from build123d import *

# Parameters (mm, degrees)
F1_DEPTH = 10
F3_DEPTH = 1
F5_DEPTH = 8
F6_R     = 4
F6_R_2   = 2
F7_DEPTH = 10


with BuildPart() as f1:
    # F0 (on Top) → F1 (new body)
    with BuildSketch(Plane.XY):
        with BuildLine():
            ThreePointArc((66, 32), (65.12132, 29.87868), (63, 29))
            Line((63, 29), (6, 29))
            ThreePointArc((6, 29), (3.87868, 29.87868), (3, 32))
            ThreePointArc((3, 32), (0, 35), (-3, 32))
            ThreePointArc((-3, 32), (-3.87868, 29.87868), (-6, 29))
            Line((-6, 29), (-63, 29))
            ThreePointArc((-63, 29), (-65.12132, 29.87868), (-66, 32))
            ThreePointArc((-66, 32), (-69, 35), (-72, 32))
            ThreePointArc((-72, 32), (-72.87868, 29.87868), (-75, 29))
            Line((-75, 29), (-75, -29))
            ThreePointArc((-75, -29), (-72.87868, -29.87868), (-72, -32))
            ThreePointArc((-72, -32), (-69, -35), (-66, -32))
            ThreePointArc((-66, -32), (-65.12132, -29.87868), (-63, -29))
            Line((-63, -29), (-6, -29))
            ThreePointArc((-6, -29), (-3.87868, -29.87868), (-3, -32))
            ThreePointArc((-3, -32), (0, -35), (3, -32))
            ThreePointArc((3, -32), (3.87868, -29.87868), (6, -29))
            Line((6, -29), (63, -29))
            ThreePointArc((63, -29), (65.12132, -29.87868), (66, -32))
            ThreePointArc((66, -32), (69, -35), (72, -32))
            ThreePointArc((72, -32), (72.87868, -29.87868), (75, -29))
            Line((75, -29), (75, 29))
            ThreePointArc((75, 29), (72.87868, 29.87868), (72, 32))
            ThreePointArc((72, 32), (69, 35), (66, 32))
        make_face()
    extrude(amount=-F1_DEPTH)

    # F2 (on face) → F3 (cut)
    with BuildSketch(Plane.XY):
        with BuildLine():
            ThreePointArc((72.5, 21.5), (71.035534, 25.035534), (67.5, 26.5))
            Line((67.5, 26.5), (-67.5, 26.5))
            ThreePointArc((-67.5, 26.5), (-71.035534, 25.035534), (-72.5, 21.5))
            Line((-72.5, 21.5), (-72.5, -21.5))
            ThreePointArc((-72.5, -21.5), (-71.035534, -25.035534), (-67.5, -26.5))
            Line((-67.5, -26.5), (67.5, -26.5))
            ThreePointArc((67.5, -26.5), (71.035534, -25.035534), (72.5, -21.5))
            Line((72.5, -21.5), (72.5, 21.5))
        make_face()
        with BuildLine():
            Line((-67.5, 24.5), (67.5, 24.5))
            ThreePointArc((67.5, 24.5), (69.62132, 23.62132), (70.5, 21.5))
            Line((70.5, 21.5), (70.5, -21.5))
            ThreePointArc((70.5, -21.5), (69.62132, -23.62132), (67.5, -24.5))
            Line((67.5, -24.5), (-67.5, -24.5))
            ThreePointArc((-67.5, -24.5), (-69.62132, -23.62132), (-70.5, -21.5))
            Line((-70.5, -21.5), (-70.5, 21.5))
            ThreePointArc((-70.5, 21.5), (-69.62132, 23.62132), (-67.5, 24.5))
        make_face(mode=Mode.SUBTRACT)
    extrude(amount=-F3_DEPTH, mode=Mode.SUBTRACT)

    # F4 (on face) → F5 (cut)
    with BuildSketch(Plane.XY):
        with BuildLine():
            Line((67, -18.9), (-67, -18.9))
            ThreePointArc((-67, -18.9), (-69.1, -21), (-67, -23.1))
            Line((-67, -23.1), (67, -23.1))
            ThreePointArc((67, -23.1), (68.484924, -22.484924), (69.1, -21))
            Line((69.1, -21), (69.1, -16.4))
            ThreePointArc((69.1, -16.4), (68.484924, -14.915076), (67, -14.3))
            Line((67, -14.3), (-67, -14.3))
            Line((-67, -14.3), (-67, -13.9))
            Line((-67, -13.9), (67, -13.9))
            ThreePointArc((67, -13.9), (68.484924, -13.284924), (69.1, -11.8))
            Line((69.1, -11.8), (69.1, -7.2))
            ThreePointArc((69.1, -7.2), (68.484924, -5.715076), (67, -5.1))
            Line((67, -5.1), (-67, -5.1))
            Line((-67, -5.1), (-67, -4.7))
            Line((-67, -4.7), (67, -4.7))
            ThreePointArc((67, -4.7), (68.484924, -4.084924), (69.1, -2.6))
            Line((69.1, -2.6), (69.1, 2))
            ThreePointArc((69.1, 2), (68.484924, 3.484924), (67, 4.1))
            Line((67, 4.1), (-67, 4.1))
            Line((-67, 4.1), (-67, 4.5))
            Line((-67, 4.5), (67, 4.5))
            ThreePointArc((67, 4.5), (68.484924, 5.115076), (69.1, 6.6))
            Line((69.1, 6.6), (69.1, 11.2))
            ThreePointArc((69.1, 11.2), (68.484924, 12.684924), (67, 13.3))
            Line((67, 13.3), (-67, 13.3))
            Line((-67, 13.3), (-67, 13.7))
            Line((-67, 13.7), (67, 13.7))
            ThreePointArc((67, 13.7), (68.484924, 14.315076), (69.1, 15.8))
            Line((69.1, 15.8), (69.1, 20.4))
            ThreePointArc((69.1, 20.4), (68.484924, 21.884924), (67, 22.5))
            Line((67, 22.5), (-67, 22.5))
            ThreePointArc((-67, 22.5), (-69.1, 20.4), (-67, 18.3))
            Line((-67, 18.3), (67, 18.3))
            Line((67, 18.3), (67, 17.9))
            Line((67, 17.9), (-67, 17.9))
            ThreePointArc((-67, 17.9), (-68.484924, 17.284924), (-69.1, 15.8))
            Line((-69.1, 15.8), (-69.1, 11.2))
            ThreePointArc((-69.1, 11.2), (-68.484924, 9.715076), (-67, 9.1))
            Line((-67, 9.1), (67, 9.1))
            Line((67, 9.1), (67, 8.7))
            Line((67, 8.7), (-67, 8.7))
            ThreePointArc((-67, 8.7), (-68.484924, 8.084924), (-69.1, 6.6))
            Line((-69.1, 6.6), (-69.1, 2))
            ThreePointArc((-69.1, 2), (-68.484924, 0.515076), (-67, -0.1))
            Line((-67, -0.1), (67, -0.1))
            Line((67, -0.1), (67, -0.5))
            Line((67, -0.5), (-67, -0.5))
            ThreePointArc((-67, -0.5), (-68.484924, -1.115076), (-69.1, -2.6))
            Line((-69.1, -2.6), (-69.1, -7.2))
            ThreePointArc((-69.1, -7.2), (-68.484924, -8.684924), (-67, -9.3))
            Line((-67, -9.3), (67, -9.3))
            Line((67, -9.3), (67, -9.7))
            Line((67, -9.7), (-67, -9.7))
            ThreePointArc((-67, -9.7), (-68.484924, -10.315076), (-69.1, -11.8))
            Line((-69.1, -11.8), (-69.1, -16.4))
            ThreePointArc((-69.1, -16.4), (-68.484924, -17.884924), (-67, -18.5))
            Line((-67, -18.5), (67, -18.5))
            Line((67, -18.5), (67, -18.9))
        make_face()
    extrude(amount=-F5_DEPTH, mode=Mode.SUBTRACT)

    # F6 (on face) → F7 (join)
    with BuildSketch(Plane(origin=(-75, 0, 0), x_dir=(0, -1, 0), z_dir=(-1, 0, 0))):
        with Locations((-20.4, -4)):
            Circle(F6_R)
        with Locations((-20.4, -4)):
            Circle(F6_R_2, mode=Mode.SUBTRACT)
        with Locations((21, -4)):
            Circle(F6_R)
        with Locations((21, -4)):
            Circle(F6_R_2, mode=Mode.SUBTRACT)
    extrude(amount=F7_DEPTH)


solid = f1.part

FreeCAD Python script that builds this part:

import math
import FreeCAD as App
import Part
import Sketcher
from FreeCAD import Vector

doc = App.newDocument("Part")
body = doc.addObject("PartDesign::Body", "Body")

# Sketch on XY plane
sketch1 = body.newObject("Sketcher::SketchObject", "Sketch")
sketch1.AttachmentSupport = (doc.getObject("XY_Plane"), [""])
sketch1.MapMode = "FlatFace"
sketch1.addGeometry([
    Part.ArcOfCircle(Part.Circle(Vector(63, 32, 0), Vector(0, 0, 1), 3), math.radians(-90), math.radians(0)),  # 0
    Part.LineSegment(Vector(63, 29, 0), Vector(6, 29, 0)),  # 1
    Part.ArcOfCircle(Part.Circle(Vector(6, 32, 0), Vector(0, 0, 1), 3), math.radians(-180), math.radians(-90)),  # 2
    Part.ArcOfCircle(Part.Circle(Vector(0, 32, 0), Vector(0, 0, 1), 3), math.radians(0), math.radians(180)),  # 3
    Part.ArcOfCircle(Part.Circle(Vector(-6, 32, 0), Vector(0, 0, 1), 3), math.radians(-90), math.radians(0)),  # 4
    Part.LineSegment(Vector(-6, 29, 0), Vector(-63, 29, 0)),  # 5
    Part.ArcOfCircle(Part.Circle(Vector(-63, 32, 0), Vector(0, 0, 1), 3), math.radians(-180), math.radians(-90)),  # 6
    Part.ArcOfCircle(Part.Circle(Vector(-69, 32, 0), Vector(0, 0, 1), 3), math.radians(0), math.radians(180)),  # 7
    Part.ArcOfCircle(Part.Circle(Vector(-75, 32, 0), Vector(0, 0, 1), 3), math.radians(-90), math.radians(0)),  # 8
    Part.LineSegment(Vector(-75, 29, 0), Vector(-75, -29, 0)),  # 9
    Part.ArcOfCircle(Part.Circle(Vector(-75, -32, 0), Vector(0, 0, 1), 3), math.radians(0), math.radians(90)),  # 10
    Part.ArcOfCircle(Part.Circle(Vector(-69, -32, 0), Vector(0, 0, 1), 3), math.radians(180), math.radians(360)),  # 11
    Part.ArcOfCircle(Part.Circle(Vector(-63, -32, 0), Vector(0, 0, 1), 3), math.radians(90), math.radians(180)),  # 12
    Part.LineSegment(Vector(-63, -29, 0), Vector(-6, -29, 0)),  # 13
    Part.ArcOfCircle(Part.Circle(Vector(-6, -32, 0), Vector(0, 0, 1), 3), math.radians(0), math.radians(90)),  # 14
    Part.ArcOfCircle(Part.Circle(Vector(0, -32, 0), Vector(0, 0, 1), 3), math.radians(180), math.radians(360)),  # 15
    Part.ArcOfCircle(Part.Circle(Vector(6, -32, 0), Vector(0, 0, 1), 3), math.radians(90), math.radians(180)),  # 16
    Part.LineSegment(Vector(6, -29, 0), Vector(63, -29, 0)),  # 17
    Part.ArcOfCircle(Part.Circle(Vector(63, -32, 0), Vector(0, 0, 1), 3), math.radians(0), math.radians(90)),  # 18
    Part.ArcOfCircle(Part.Circle(Vector(69, -32, 0), Vector(0, 0, 1), 3), math.radians(180), math.radians(360)),  # 19
    Part.ArcOfCircle(Part.Circle(Vector(75, -32, 0), Vector(0, 0, 1), 3), math.radians(90), math.radians(180)),  # 20
    Part.LineSegment(Vector(75, -29, 0), Vector(75, 29, 0)),  # 21
    Part.ArcOfCircle(Part.Circle(Vector(75, 32, 0), Vector(0, 0, 1), 3), math.radians(-180), math.radians(-90)),  # 22
    Part.ArcOfCircle(Part.Circle(Vector(69, 32, 0), Vector(0, 0, 1), 3), math.radians(0), math.radians(180)),  # 23
], False)
sketch1.addConstraint([
    Sketcher.Constraint("Tangent", 0, 1, 1, 1),
    Sketcher.Constraint("Tangent", 1, 2, 2, 2),
    Sketcher.Constraint("Tangent", 2, 1, 3, 1),
    Sketcher.Constraint("Tangent", 3, 2, 4, 2),
    Sketcher.Constraint("Tangent", 4, 1, 5, 1),
    Sketcher.Constraint("Tangent", 5, 2, 6, 2),
    Sketcher.Constraint("Tangent", 6, 1, 7, 1),
    Sketcher.Constraint("Tangent", 7, 2, 8, 2),
    Sketcher.Constraint("Coincident", 8, 1, 9, 1),
    Sketcher.Constraint("Coincident", 9, 2, 10, 2),
    Sketcher.Constraint("Tangent", 10, 1, 11, 1),
    Sketcher.Constraint("Tangent", 11, 2, 12, 2),
    Sketcher.Constraint("Tangent", 12, 1, 13, 1),
    Sketcher.Constraint("Tangent", 13, 2, 14, 2),
    Sketcher.Constraint("Tangent", 14, 1, 15, 1),
    Sketcher.Constraint("Tangent", 15, 2, 16, 2),
    Sketcher.Constraint("Tangent", 16, 1, 17, 1),
    Sketcher.Constraint("Tangent", 17, 2, 18, 2),
    Sketcher.Constraint("Tangent", 18, 1, 19, 1),
    Sketcher.Constraint("Tangent", 19, 2, 20, 2),
    Sketcher.Constraint("Coincident", 20, 1, 21, 1),
    Sketcher.Constraint("Coincident", 21, 2, 22, 2),
    Sketcher.Constraint("Tangent", 22, 1, 23, 1),
    Sketcher.Constraint("Tangent", 23, 2, 0, 2),
    Sketcher.Constraint("Horizontal", 1),
    Sketcher.Constraint("Horizontal", 5),
    Sketcher.Constraint("Vertical", 9),
    Sketcher.Constraint("Horizontal", 13),
    Sketcher.Constraint("Horizontal", 17),
    Sketcher.Constraint("Vertical", 21),
    Sketcher.Constraint("Equal", 0, 2),
    Sketcher.Constraint("Equal", 2, 3),
    Sketcher.Constraint("Equal", 3, 4),
    Sketcher.Constraint("Equal", 4, 6),
    Sketcher.Constraint("Equal", 6, 7),
    Sketcher.Constraint("Equal", 7, 8),
    Sketcher.Constraint("Equal", 8, 10),
    Sketcher.Constraint("Equal", 10, 11),
    Sketcher.Constraint("Equal", 11, 12),
    Sketcher.Constraint("Equal", 12, 14),
    Sketcher.Constraint("Equal", 14, 15),
    Sketcher.Constraint("Equal", 15, 16),
    Sketcher.Constraint("Equal", 16, 18),
    Sketcher.Constraint("Equal", 18, 19),
    Sketcher.Constraint("Equal", 19, 20),
    Sketcher.Constraint("Equal", 20, 22),
    Sketcher.Constraint("Equal", 22, 23),
    Sketcher.Constraint("Symmetric", 0, 3, 12, 3, -1, 1),
    Sketcher.Constraint("Symmetric", 3, 3, 15, 3, -1, 1),
    Sketcher.Constraint("Symmetric", 6, 3, 18, 3, -1, 1),
    Sketcher.Constraint("Symmetric", 8, 1, 20, 1, -1, 1),
    Sketcher.Constraint("Symmetric", 2, 3, 4, 3, -2),
    Sketcher.Constraint("Symmetric", 11, 3, 19, 3, -2),
    Sketcher.Constraint("Horizontal", 2, 3, 3, 3),
    Sketcher.Constraint("Horizontal", 6, 3, 7, 3),
    Sketcher.Constraint("Horizontal", 7, 3, 8, 3),
    Sketcher.Constraint("Horizontal", 10, 3, 11, 3),
    Sketcher.Constraint("Horizontal", 11, 3, 12, 3),
    Sketcher.Constraint("Horizontal", 8, 3, 22, 3),
    Sketcher.Constraint("Horizontal", 22, 3, 23, 3),
    Sketcher.Constraint("Vertical", 10, 3, 8, 1),
    Sketcher.Constraint("Radius", 0, 3.000001),
    Sketcher.Constraint("DistanceX", 1, 2, 1, 1, 57.0),
    Sketcher.Constraint("DistanceY", 9, 2, 9, 1, 58.0),
])
pad1 = body.newObject("PartDesign::Pad", "Pad")
pad1.Profile = sketch1
pad1.Length = 10
pad1.Reversed = True

# Sketch on XY plane
sketch2 = body.newObject("Sketcher::SketchObject", "Sketch001")
sketch2.AttachmentSupport = (doc.getObject("XY_Plane"), [""])
sketch2.MapMode = "FlatFace"
sketch2.addGeometry([
    Part.ArcOfCircle(Part.Circle(Vector(67.5, 21.5, 0), Vector(0, 0, 1), 5), math.radians(0), math.radians(90)),  # 0
    Part.LineSegment(Vector(67.5, 26.5, 0), Vector(-67.5, 26.5, 0)),  # 1
    Part.ArcOfCircle(Part.Circle(Vector(-67.5, 21.5, 0), Vector(0, 0, 1), 5), math.radians(90), math.radians(180)),  # 2
    Part.LineSegment(Vector(-72.5, 21.5, 0), Vector(-72.5, -21.5, 0)),  # 3
    Part.ArcOfCircle(Part.Circle(Vector(-67.5, -21.5, 0), Vector(0, 0, 1), 5), math.radians(180), math.radians(270)),  # 4
    Part.LineSegment(Vector(-67.5, -26.5, 0), Vector(67.5, -26.5, 0)),  # 5
    Part.ArcOfCircle(Part.Circle(Vector(67.5, -21.5, 0), Vector(0, 0, 1), 5), math.radians(-90), math.radians(0)),  # 6
    Part.LineSegment(Vector(72.5, -21.5, 0), Vector(72.5, 21.5, 0)),  # 7
    Part.ArcOfCircle(Part.Circle(Vector(-67.5, 21.5, 0), Vector(0, 0, 1), 3), math.radians(90), math.radians(180)),  # 8
    Part.LineSegment(Vector(-67.5, 24.5, 0), Vector(67.5, 24.5, 0)),  # 9
    Part.ArcOfCircle(Part.Circle(Vector(67.5, 21.5, 0), Vector(0, 0, 1), 3), math.radians(0), math.radians(90)),  # 10
    Part.LineSegment(Vector(70.5, 21.5, 0), Vector(70.5, -21.5, 0)),  # 11
    Part.ArcOfCircle(Part.Circle(Vector(67.5, -21.5, 0), Vector(0, 0, 1), 3), math.radians(-90), math.radians(0)),  # 12
    Part.LineSegment(Vector(67.5, -24.5, 0), Vector(-67.5, -24.5, 0)),  # 13
    Part.ArcOfCircle(Part.Circle(Vector(-67.5, -21.5, 0), Vector(0, 0, 1), 3), math.radians(-180), math.radians(-90)),  # 14
    Part.LineSegment(Vector(-70.5, -21.5, 0), Vector(-70.5, 21.5, 0)),  # 15
], False)
sketch2.addConstraint([
    Sketcher.Constraint("Tangent", 0, 2, 1, 1),
    Sketcher.Constraint("Tangent", 1, 2, 2, 1),
    Sketcher.Constraint("Tangent", 2, 2, 3, 1),
    Sketcher.Constraint("Tangent", 3, 2, 4, 1),
    Sketcher.Constraint("Tangent", 4, 2, 5, 1),
    Sketcher.Constraint("Tangent", 5, 2, 6, 1),
    Sketcher.Constraint("Tangent", 6, 2, 7, 1),
    Sketcher.Constraint("Tangent", 7, 2, 0, 1),
    Sketcher.Constraint("Tangent", 8, 1, 9, 1),
    Sketcher.Constraint("Tangent", 9, 2, 10, 2),
    Sketcher.Constraint("Tangent", 10, 1, 11, 1),
    Sketcher.Constraint("Tangent", 11, 2, 12, 2),
    Sketcher.Constraint("Tangent", 12, 1, 13, 1),
    Sketcher.Constraint("Tangent", 13, 2, 14, 2),
    Sketcher.Constraint("Tangent", 14, 1, 15, 1),
    Sketcher.Constraint("Tangent", 15, 2, 8, 2),
    Sketcher.Constraint("Horizontal", 1),
    Sketcher.Constraint("Vertical", 3),
    Sketcher.Constraint("Horizontal", 5),
    Sketcher.Constraint("Vertical", 7),
    Sketcher.Constraint("Horizontal", 9),
    Sketcher.Constraint("Vertical", 11),
    Sketcher.Constraint("Horizontal", 13),
    Sketcher.Constraint("Vertical", 15),
    Sketcher.Constraint("Coincident", 8, 3, 2, 3),
    Sketcher.Constraint("Coincident", 10, 3, 0, 3),
    Sketcher.Constraint("Coincident", 12, 3, 6, 3),
    Sketcher.Constraint("Equal", 0, 2),
    Sketcher.Constraint("Equal", 2, 4),
    Sketcher.Constraint("Equal", 4, 6),
    Sketcher.Constraint("Equal", 12, 14),
    Sketcher.Constraint("Symmetric", 0, 3, 4, 3, -1, 1),
    Sketcher.Constraint("Radius", 0, 5.0),
    Sketcher.Constraint("Radius", 8, 3.000001),
    Sketcher.Constraint("DistanceX", 1, 2, 1, 1, 135.0),
    Sketcher.Constraint("DistanceY", 3, 2, 3, 1, 43.0),
])
pocket1 = body.newObject("PartDesign::Pocket", "Pocket")
pocket1.Profile = sketch2
pocket1.Length = 1

# Sketch on XY plane
sketch3 = body.newObject("Sketcher::SketchObject", "Sketch002")
sketch3.AttachmentSupport = (doc.getObject("XY_Plane"), [""])
sketch3.MapMode = "FlatFace"
sketch3.addGeometry([
    Part.LineSegment(Vector(67, -18.9, 0), Vector(-67, -18.9, 0)),  # 0
    Part.ArcOfCircle(Part.Circle(Vector(-67, -21, 0), Vector(0, 0, 1), 2.1), math.radians(90), math.radians(270)),  # 1
    Part.LineSegment(Vector(-67, -23.1, 0), Vector(67, -23.1, 0)),  # 2
    Part.ArcOfCircle(Part.Circle(Vector(67, -21, 0), Vector(0, 0, 1), 2.1), math.radians(-90), math.radians(0)),  # 3
    Part.LineSegment(Vector(69.1, -21, 0), Vector(69.1, -16.4, 0)),  # 4
    Part.ArcOfCircle(Part.Circle(Vector(67, -16.4, 0), Vector(0, 0, 1), 2.1), math.radians(0), math.radians(90)),  # 5
    Part.LineSegment(Vector(67, -14.3, 0), Vector(-67, -14.3, 0)),  # 6
    Part.LineSegment(Vector(-67, -14.3, 0), Vector(-67, -13.9, 0)),  # 7
    Part.LineSegment(Vector(-67, -13.9, 0), Vector(67, -13.9, 0)),  # 8
    Part.ArcOfCircle(Part.Circle(Vector(67, -11.8, 0), Vector(0, 0, 1), 2.1), math.radians(-90), math.radians(0)),  # 9
    Part.LineSegment(Vector(69.1, -11.8, 0), Vector(69.1, -7.2, 0)),  # 10
    Part.ArcOfCircle(Part.Circle(Vector(67, -7.2, 0), Vector(0, 0, 1), 2.1), math.radians(0), math.radians(90)),  # 11
    Part.LineSegment(Vector(67, -5.1, 0), Vector(-67, -5.1, 0)),  # 12
    Part.LineSegment(Vector(-67, -5.1, 0), Vector(-67, -4.7, 0)),  # 13
    Part.LineSegment(Vector(-67, -4.7, 0), Vector(67, -4.7, 0)),  # 14
    Part.ArcOfCircle(Part.Circle(Vector(67, -2.6, 0), Vector(0, 0, 1), 2.1), math.radians(-90), math.radians(0)),  # 15
    Part.LineSegment(Vector(69.1, -2.6, 0), Vector(69.1, 2, 0)),  # 16
    Part.ArcOfCircle(Part.Circle(Vector(67, 2, 0), Vector(0, 0, 1), 2.1), math.radians(0), math.radians(90)),  # 17
    Part.LineSegment(Vector(67, 4.1, 0), Vector(-67, 4.1, 0)),  # 18
    Part.LineSegment(Vector(-67, 4.1, 0), Vector(-67, 4.5, 0)),  # 19
    Part.LineSegment(Vector(-67, 4.5, 0), Vector(67, 4.5, 0)),  # 20
    Part.ArcOfCircle(Part.Circle(Vector(67, 6.6, 0), Vector(0, 0, 1), 2.1), math.radians(-90), math.radians(0)),  # 21
    Part.LineSegment(Vector(69.1, 6.6, 0), Vector(69.1, 11.2, 0)),  # 22
    Part.ArcOfCircle(Part.Circle(Vector(67, 11.2, 0), Vector(0, 0, 1), 2.1), math.radians(0), math.radians(90)),  # 23
    Part.LineSegment(Vector(67, 13.3, 0), Vector(-67, 13.3, 0)),  # 24
    Part.LineSegment(Vector(-67, 13.3, 0), Vector(-67, 13.7, 0)),  # 25
    Part.LineSegment(Vector(-67, 13.7, 0), Vector(67, 13.7, 0)),  # 26
    Part.ArcOfCircle(Part.Circle(Vector(67, 15.8, 0), Vector(0, 0, 1), 2.1), math.radians(-90), math.radians(0)),  # 27
    Part.LineSegment(Vector(69.1, 15.8, 0), Vector(69.1, 20.4, 0)),  # 28
    Part.ArcOfCircle(Part.Circle(Vector(67, 20.4, 0), Vector(0, 0, 1), 2.1), math.radians(0), math.radians(90)),  # 29
    Part.LineSegment(Vector(67, 22.5, 0), Vector(-67, 22.5, 0)),  # 30
    Part.ArcOfCircle(Part.Circle(Vector(-67, 20.4, 0), Vector(0, 0, 1), 2.1), math.radians(90), math.radians(270)),  # 31
    Part.LineSegment(Vector(-67, 18.3, 0), Vector(67, 18.3, 0)),  # 32
    Part.LineSegment(Vector(67, 18.3, 0), Vector(67, 17.9, 0)),  # 33
    Part.LineSegment(Vector(67, 17.9, 0), Vector(-67, 17.9, 0)),  # 34
    Part.ArcOfCircle(Part.Circle(Vector(-67, 15.8, 0), Vector(0, 0, 1), 2.1), math.radians(90), math.radians(180)),  # 35
    Part.LineSegment(Vector(-69.1, 15.8, 0), Vector(-69.1, 11.2, 0)),  # 36
    Part.ArcOfCircle(Part.Circle(Vector(-67, 11.2, 0), Vector(0, 0, 1), 2.1), math.radians(-180), math.radians(-90)),  # 37
    Part.LineSegment(Vector(-67, 9.1, 0), Vector(67, 9.1, 0)),  # 38
    Part.LineSegment(Vector(67, 9.1, 0), Vector(67, 8.7, 0)),  # 39
    Part.LineSegment(Vector(67, 8.7, 0), Vector(-67, 8.7, 0)),  # 40
    Part.ArcOfCircle(Part.Circle(Vector(-67, 6.6, 0), Vector(0, 0, 1), 2.1), math.radians(90), math.radians(180)),  # 41
    Part.LineSegment(Vector(-69.1, 6.6, 0), Vector(-69.1, 2, 0)),  # 42
    Part.ArcOfCircle(Part.Circle(Vector(-67, 2, 0), Vector(0, 0, 1), 2.1), math.radians(-180), math.radians(-90)),  # 43
    Part.LineSegment(Vector(-67, -0.1, 0), Vector(67, -0.1, 0)),  # 44
    Part.LineSegment(Vector(67, -0.1, 0), Vector(67, -0.5, 0)),  # 45
    Part.LineSegment(Vector(67, -0.5, 0), Vector(-67, -0.5, 0)),  # 46
    Part.ArcOfCircle(Part.Circle(Vector(-67, -2.6, 0), Vector(0, 0, 1), 2.1), math.radians(90), math.radians(180)),  # 47
    Part.LineSegment(Vector(-69.1, -2.6, 0), Vector(-69.1, -7.2, 0)),  # 48
    Part.ArcOfCircle(Part.Circle(Vector(-67, -7.2, 0), Vector(0, 0, 1), 2.1), math.radians(-180), math.radians(-90)),  # 49
    Part.LineSegment(Vector(-67, -9.3, 0), Vector(67, -9.3, 0)),  # 50
    Part.LineSegment(Vector(67, -9.3, 0), Vector(67, -9.7, 0)),  # 51
    Part.LineSegment(Vector(67, -9.7, 0), Vector(-67, -9.7, 0)),  # 52
    Part.ArcOfCircle(Part.Circle(Vector(-67, -11.8, 0), Vector(0, 0, 1), 2.1), math.radians(90), math.radians(180)),  # 53
    Part.LineSegment(Vector(-69.1, -11.8, 0), Vector(-69.1, -16.4, 0)),  # 54
    Part.ArcOfCircle(Part.Circle(Vector(-67, -16.4, 0), Vector(0, 0, 1), 2.1), math.radians(-180), math.radians(-90)),  # 55
    Part.LineSegment(Vector(-67, -18.5, 0), Vector(67, -18.5, 0)),  # 56
    Part.LineSegment(Vector(67, -18.5, 0), Vector(67, -18.9, 0)),  # 57
], False)
sketch3.addConstraint([
    Sketcher.Constraint("Tangent", 0, 2, 1, 1),
    Sketcher.Constraint("Tangent", 1, 2, 2, 1),
    Sketcher.Constraint("Tangent", 2, 2, 3, 1),
    Sketcher.Constraint("Tangent", 3, 2, 4, 1),
    Sketcher.Constraint("Tangent", 4, 2, 5, 1),
    Sketcher.Constraint("Tangent", 5, 2, 6, 1),
    Sketcher.Constraint("Coincident", 6, 2, 7, 1),
    Sketcher.Constraint("Coincident", 7, 2, 8, 1),
    Sketcher.Constraint("Tangent", 8, 2, 9, 1),
    Sketcher.Constraint("Tangent", 9, 2, 10, 1),
    Sketcher.Constraint("Tangent", 10, 2, 11, 1),
    Sketcher.Constraint("Tangent", 11, 2, 12, 1),
    Sketcher.Constraint("Coincident", 12, 2, 13, 1),
    Sketcher.Constraint("Coincident", 13, 2, 14, 1),
    Sketcher.Constraint("Tangent", 14, 2, 15, 1),
    Sketcher.Constraint("Tangent", 15, 2, 16, 1),
    Sketcher.Constraint("Tangent", 16, 2, 17, 1),
    Sketcher.Constraint("Tangent", 17, 2, 18, 1),
    Sketcher.Constraint("Coincident", 18, 2, 19, 1),
    Sketcher.Constraint("Coincident", 19, 2, 20, 1),
    Sketcher.Constraint("Tangent", 20, 2, 21, 1),
    Sketcher.Constraint("Tangent", 21, 2, 22, 1),
    Sketcher.Constraint("Tangent", 22, 2, 23, 1),
    Sketcher.Constraint("Tangent", 23, 2, 24, 1),
    Sketcher.Constraint("Coincident", 24, 2, 25, 1),
    Sketcher.Constraint("Coincident", 25, 2, 26, 1),
    Sketcher.Constraint("Tangent", 26, 2, 27, 1),
    Sketcher.Constraint("Tangent", 27, 2, 28, 1),
    Sketcher.Constraint("Tangent", 28, 2, 29, 1),
    Sketcher.Constraint("Tangent", 29, 2, 30, 1),
    Sketcher.Constraint("Tangent", 30, 2, 31, 1),
    Sketcher.Constraint("Tangent", 31, 2, 32, 1),
    Sketcher.Constraint("Coincident", 32, 2, 33, 1),
    Sketcher.Constraint("Coincident", 33, 2, 34, 1),
    Sketcher.Constraint("Tangent", 34, 2, 35, 1),
    Sketcher.Constraint("Tangent", 35, 2, 36, 1),
    Sketcher.Constraint("Tangent", 36, 2, 37, 1),
    Sketcher.Constraint("Tangent", 37, 2, 38, 1),
    Sketcher.Constraint("Coincident", 38, 2, 39, 1),
    Sketcher.Constraint("Coincident", 39, 2, 40, 1),
    Sketcher.Constraint("Tangent", 40, 2, 41, 1),
    Sketcher.Constraint("Tangent", 41, 2, 42, 1),
    Sketcher.Constraint("Tangent", 42, 2, 43, 1),
    Sketcher.Constraint("Tangent", 43, 2, 44, 1),
    Sketcher.Constraint("Coincident", 44, 2, 45, 1),
    Sketcher.Constraint("Coincident", 45, 2, 46, 1),
    Sketcher.Constraint("Tangent", 46, 2, 47, 1),
    Sketcher.Constraint("Tangent", 47, 2, 48, 1),
    Sketcher.Constraint("Tangent", 48, 2, 49, 1),
    Sketcher.Constraint("Tangent", 49, 2, 50, 1),
    Sketcher.Constraint("Coincident", 50, 2, 51, 1),
    Sketcher.Constraint("Coincident", 51, 2, 52, 1),
    Sketcher.Constraint("Tangent", 52, 2, 53, 1),
    Sketcher.Constraint("Tangent", 53, 2, 54, 1),
    Sketcher.Constraint("Tangent", 54, 2, 55, 1),
    Sketcher.Constraint("Tangent", 55, 2, 56, 1),
    Sketcher.Constraint("Coincident", 56, 2, 57, 1),
    Sketcher.Constraint("Coincident", 57, 2, 0, 1),
    Sketcher.Constraint("Horizontal", 0),
    Sketcher.Constraint("Horizontal", 2),
    Sketcher.Constraint("Vertical", 4),
    Sketcher.Constraint("Horizontal", 6),
    Sketcher.Constraint("Vertical", 7),
    Sketcher.Constraint("Horizontal", 8),
    Sketcher.Constraint("Vertical", 10),
    Sketcher.Constraint("Horizontal", 12),
    Sketcher.Constraint("Vertical", 13),
    Sketcher.Constraint("Horizontal", 14),
    Sketcher.Constraint("Vertical", 16),
    Sketcher.Constraint("Horizontal", 18),
    Sketcher.Constraint("Vertical", 19),
    Sketcher.Constraint("Horizontal", 20),
    Sketcher.Constraint("Vertical", 22),
    Sketcher.Constraint("Horizontal", 24),
    Sketcher.Constraint("Vertical", 25),
    Sketcher.Constraint("Horizontal", 26),
    Sketcher.Constraint("Vertical", 28),
    Sketcher.Constraint("Horizontal", 30),
    Sketcher.Constraint("Horizontal", 32),
    Sketcher.Constraint("Vertical", 33),
    Sketcher.Constraint("Horizontal", 34),
    Sketcher.Constraint("Vertical", 36),
    Sketcher.Constraint("Horizontal", 38),
    Sketcher.Constraint("Vertical", 39),
    Sketcher.Constraint("Horizontal", 40),
    Sketcher.Constraint("Vertical", 42),
    Sketcher.Constraint("Horizontal", 44),
    Sketcher.Constraint("Vertical", 45),
    Sketcher.Constraint("Horizontal", 46),
    Sketcher.Constraint("Vertical", 48),
    Sketcher.Constraint("Horizontal", 50),
    Sketcher.Constraint("Vertical", 51),
    Sketcher.Constraint("Horizontal", 52),
    Sketcher.Constraint("Vertical", 54),
    Sketcher.Constraint("Horizontal", 56),
    Sketcher.Constraint("Vertical", 57),
    Sketcher.Constraint("Equal", 1, 3),
    Sketcher.Constraint("Equal", 3, 5),
    Sketcher.Constraint("Equal", 5, 9),
    Sketcher.Constraint("Equal", 9, 11),
    Sketcher.Constraint("Equal", 11, 15),
    Sketcher.Constraint("Equal", 15, 17),
    Sketcher.Constraint("Equal", 17, 21),
    Sketcher.Constraint("Equal", 21, 23),
    Sketcher.Constraint("Equal", 23, 27),
    Sketcher.Constraint("Equal", 27, 29),
    Sketcher.Constraint("Equal", 29, 31),
    Sketcher.Constraint("Equal", 31, 35),
    Sketcher.Constraint("Equal", 35, 37),
    Sketcher.Constraint("Equal", 37, 41),
    Sketcher.Constraint("Equal", 41, 43),
    Sketcher.Constraint("Equal", 43, 47),
    Sketcher.Constraint("Equal", 47, 49),
    Sketcher.Constraint("Equal", 49, 53),
    Sketcher.Constraint("Equal", 53, 55),
    Sketcher.Constraint("Symmetric", 27, 3, 35, 3, -2),
    Sketcher.Constraint("Symmetric", 23, 3, 37, 3, -2),
    Sketcher.Constraint("Symmetric", 21, 3, 41, 3, -2),
    Sketcher.Constraint("Symmetric", 17, 3, 43, 3, -2),
    Sketcher.Constraint("Symmetric", 15, 3, 47, 3, -2),
    Sketcher.Constraint("Symmetric", 11, 3, 49, 3, -2),
    Sketcher.Constraint("Symmetric", 9, 3, 53, 3, -2),
    Sketcher.Constraint("Symmetric", 5, 3, 55, 3, -2),
    Sketcher.Constraint("Vertical", 1, 3, 31, 3),
    Sketcher.Constraint("Vertical", 31, 3, 35, 3),
    Sketcher.Constraint("Vertical", 1, 2, 6, 2),
    Sketcher.Constraint("Vertical", 7, 2, 12, 2),
    Sketcher.Constraint("Vertical", 13, 2, 18, 2),
    Sketcher.Constraint("Vertical", 19, 2, 24, 2),
    Sketcher.Constraint("Vertical", 29, 2, 32, 2),
    Sketcher.Constraint("Vertical", 33, 2, 38, 2),
    Sketcher.Constraint("Vertical", 39, 2, 44, 2),
    Sketcher.Constraint("Vertical", 45, 2, 50, 2),
    Sketcher.Constraint("Vertical", 51, 2, 56, 2),
    Sketcher.Constraint("Equal", 4, 10),
    Sketcher.Constraint("Equal", 7, 13),
    Sketcher.Constraint("Equal", 10, 16),
    Sketcher.Constraint("Equal", 13, 19),
    Sketcher.Constraint("Equal", 16, 22),
    Sketcher.Constraint("Equal", 19, 25),
    Sketcher.Constraint("Equal", 22, 28),
    Sketcher.Constraint("Equal", 25, 33),
    Sketcher.Constraint("Radius", 1, 2.1),
    Sketcher.Constraint("DistanceX", 0, 2, 0, 1, 134.0),
    Sketcher.Constraint("DistanceY", 4, 1, 4, 2, 4.6),
    Sketcher.Constraint("DistanceY", 1, 3, -1, 1, 21.0),
])
pocket2 = body.newObject("PartDesign::Pocket", "Pocket001")
pocket2.Profile = sketch3
pocket2.Length = 8

# Sketch on YZ plane
sketch4 = body.newObject("Sketcher::SketchObject", "Sketch003")
sketch4.AttachmentSupport = (doc.getObject("YZ_Plane"), [""])
sketch4.MapMode = "FlatFace"
sketch4.AttachmentOffset = App.Placement(Vector(0, 0, -75), App.Rotation())
sketch4.addGeometry([
    Part.Circle(Vector(20.4, -4, 0), Vector(0, 0, 1), 4),
    Part.Circle(Vector(20.4, -4, 0), Vector(0, 0, 1), 2),
    Part.Circle(Vector(-21, -4, 0), Vector(0, 0, 1), 4),
    Part.Circle(Vector(-21, -4, 0), Vector(0, 0, 1), 2),
], False)
sketch4.addConstraint([
    Sketcher.Constraint("Coincident", 1, 3, 0, 3),
    Sketcher.Constraint("Coincident", 3, 3, 2, 3),
    Sketcher.Constraint("Equal", 0, 2),
    Sketcher.Constraint("Equal", 1, 3),
    Sketcher.Constraint("Horizontal", 1, 3, 2, 3),
    Sketcher.Constraint("Diameter", 0, 8.0),
    Sketcher.Constraint("Diameter", 1, 4.0),
    Sketcher.Constraint("DistanceY", 0, 3, -1, 1, 4.0),
    Sketcher.Constraint("DistanceX", 2, 3, -1, 1, 21.0),
    Sketcher.Constraint("DistanceX", -1, 1, 0, 3, 20.4),
])
pad2 = body.newObject("PartDesign::Pad", "Pad001")
pad2.Profile = sketch4
pad2.Length = 10
pad2.Reversed = True

doc.recompute()
